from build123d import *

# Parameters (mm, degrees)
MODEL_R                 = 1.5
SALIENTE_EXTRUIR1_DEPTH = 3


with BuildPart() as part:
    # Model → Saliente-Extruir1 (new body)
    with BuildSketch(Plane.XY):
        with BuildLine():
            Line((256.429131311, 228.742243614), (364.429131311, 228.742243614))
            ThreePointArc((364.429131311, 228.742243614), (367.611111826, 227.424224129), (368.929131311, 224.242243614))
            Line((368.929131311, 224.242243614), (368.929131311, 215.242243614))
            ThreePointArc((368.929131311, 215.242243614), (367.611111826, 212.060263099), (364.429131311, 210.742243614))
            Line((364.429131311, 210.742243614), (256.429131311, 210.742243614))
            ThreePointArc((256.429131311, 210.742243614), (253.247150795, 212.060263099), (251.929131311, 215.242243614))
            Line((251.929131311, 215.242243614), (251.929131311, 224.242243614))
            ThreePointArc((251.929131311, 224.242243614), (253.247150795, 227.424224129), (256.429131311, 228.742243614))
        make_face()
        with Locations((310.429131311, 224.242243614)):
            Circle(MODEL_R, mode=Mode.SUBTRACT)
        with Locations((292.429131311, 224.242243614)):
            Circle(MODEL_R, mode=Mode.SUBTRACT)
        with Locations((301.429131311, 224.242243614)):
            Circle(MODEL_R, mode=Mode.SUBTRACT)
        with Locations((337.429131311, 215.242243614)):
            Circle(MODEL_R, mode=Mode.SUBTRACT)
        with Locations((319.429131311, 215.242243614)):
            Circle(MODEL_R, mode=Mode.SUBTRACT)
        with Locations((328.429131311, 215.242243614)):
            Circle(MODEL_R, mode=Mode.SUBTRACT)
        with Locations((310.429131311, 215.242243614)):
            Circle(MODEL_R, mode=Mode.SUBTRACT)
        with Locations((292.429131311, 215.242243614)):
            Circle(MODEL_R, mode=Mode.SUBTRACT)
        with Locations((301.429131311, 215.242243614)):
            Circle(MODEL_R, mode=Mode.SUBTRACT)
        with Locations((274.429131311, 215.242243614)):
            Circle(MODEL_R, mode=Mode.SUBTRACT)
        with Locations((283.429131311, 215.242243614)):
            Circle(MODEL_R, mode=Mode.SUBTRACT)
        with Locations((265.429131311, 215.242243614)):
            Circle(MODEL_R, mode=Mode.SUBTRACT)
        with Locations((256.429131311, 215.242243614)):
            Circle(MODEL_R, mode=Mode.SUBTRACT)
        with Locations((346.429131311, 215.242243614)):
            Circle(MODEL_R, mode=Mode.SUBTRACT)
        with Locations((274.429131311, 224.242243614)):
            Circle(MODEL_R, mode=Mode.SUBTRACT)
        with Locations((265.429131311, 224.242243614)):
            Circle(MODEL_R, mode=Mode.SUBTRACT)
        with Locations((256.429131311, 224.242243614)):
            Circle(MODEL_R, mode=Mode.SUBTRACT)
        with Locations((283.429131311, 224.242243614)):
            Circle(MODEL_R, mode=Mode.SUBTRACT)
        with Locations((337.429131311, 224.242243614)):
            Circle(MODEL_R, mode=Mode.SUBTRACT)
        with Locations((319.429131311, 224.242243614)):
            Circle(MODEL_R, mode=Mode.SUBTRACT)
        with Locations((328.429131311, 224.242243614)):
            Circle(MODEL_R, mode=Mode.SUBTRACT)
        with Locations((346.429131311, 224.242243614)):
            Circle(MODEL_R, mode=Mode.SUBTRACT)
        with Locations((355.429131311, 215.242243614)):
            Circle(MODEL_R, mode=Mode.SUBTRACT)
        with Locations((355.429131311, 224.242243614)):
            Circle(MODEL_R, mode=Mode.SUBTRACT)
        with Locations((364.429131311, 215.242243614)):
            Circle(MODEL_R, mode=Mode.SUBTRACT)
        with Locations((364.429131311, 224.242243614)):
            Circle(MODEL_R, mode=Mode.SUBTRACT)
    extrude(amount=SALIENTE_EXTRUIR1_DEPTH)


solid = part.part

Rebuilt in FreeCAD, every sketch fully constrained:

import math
import FreeCAD as App
import Part
import Sketcher
from FreeCAD import Vector

doc = App.newDocument("Part")
body = doc.addObject("PartDesign::Body", "Body")

sketch1 = doc.addObject("Sketcher::SketchObject", "Sketch")
body.addObject(sketch1)
sketch1.AttachmentSupport = (doc.XY_Plane, [""])
sketch1.MapMode = "FlatFace"
sketch1.addGeometry(Part.LineSegment(Vector(364.4, 228.7, 0), Vector(256.4, 228.7, 0)), False)
sketch1.addGeometry(Part.ArcOfCircle(Part.Circle(Vector(256.4, 224.2, 0), Vector(0, 0, 1), 4.5), math.radians(90), math.radians(180)), False)
sketch1.addGeometry(Part.LineSegment(Vector(251.9, 224.2, 0), Vector(251.9, 215.2, 0)), False)
sketch1.addGeometry(Part.ArcOfCircle(Part.Circle(Vector(256.4, 215.2, 0), Vector(0, 0, 1), 4.5), math.radians(180), math.radians(270)), False)
sketch1.addGeometry(Part.LineSegment(Vector(256.4, 210.7, 0), Vector(364.4, 210.7, 0)), False)
sketch1.addGeometry(Part.ArcOfCircle(Part.Circle(Vector(364.4, 215.2, 0), Vector(0, 0, 1), 4.5), math.radians(-90), math.radians(0)), False)
sketch1.addGeometry(Part.LineSegment(Vector(368.9, 215.2, 0), Vector(368.9, 224.2, 0)), False)
sketch1.addGeometry(Part.ArcOfCircle(Part.Circle(Vector(364.4, 224.2, 0), Vector(0, 0, 1), 4.5), math.radians(0), math.radians(90)), False)
sketch1.addGeometry(Part.Circle(Vector(364.4, 215.2, 0), Vector(0, 0, 1), 1.5), False)
sketch1.addGeometry(Part.Circle(Vector(355.4, 215.2, 0), Vector(0, 0, 1), 1.5), False)
sketch1.addGeometry(Part.Circle(Vector(346.4, 215.2, 0), Vector(0, 0, 1), 1.5), False)
sketch1.addGeometry(Part.Circle(Vector(337.4, 215.2, 0), Vector(0, 0, 1), 1.5), False)
sketch1.addGeometry(Part.Circle(Vector(328.4, 215.2, 0), Vector(0, 0, 1), 1.5), False)
sketch1.addGeometry(Part.Circle(Vector(319.4, 215.2, 0), Vector(0, 0, 1), 1.5), False)
sketch1.addGeometry(Part.Circle(Vector(310.4, 215.2, 0), Vector(0, 0, 1), 1.5), False)
sketch1.addGeometry(Part.Circle(Vector(301.4, 215.2, 0), Vector(0, 0, 1), 1.5), False)
sketch1.addGeometry(Part.Circle(Vector(292.4, 215.2, 0), Vector(0, 0, 1), 1.5), False)
sketch1.addGeometry(Part.Circle(Vector(283.4, 215.2, 0), Vector(0, 0, 1), 1.5), False)
sketch1.addGeometry(Part.Circle(Vector(274.4, 215.2, 0), Vector(0, 0, 1), 1.5), False)
sketch1.addGeometry(Part.Circle(Vector(265.4, 215.2, 0), Vector(0, 0, 1), 1.5), False)
sketch1.addGeometry(Part.Circle(Vector(256.4, 215.2, 0), Vector(0, 0, 1), 1.5), False)
sketch1.addGeometry(Part.Circle(Vector(364.4, 224.2, 0), Vector(0, 0, 1), 1.5), False)
sketch1.addGeometry(Part.Circle(Vector(355.4, 224.2, 0), Vector(0, 0, 1), 1.5), False)
sketch1.addGeometry(Part.Circle(Vector(346.4, 224.2, 0), Vector(0, 0, 1), 1.5), False)
sketch1.addGeometry(Part.Circle(Vector(337.4, 224.2, 0), Vector(0, 0, 1), 1.5), False)
sketch1.addGeometry(Part.Circle(Vector(328.4, 224.2, 0), Vector(0, 0, 1), 1.5), False)
sketch1.addGeometry(Part.Circle(Vector(319.4, 224.2, 0), Vector(0, 0, 1), 1.5), False)
sketch1.addGeometry(Part.Circle(Vector(310.4, 224.2, 0), Vector(0, 0, 1), 1.5), False)
sketch1.addGeometry(Part.Circle(Vector(301.4, 224.2, 0), Vector(0, 0, 1), 1.5), False)
sketch1.addGeometry(Part.Circle(Vector(292.4, 224.2, 0), Vector(0, 0, 1), 1.5), False)
sketch1.addGeometry(Part.Circle(Vector(283.4, 224.2, 0), Vector(0, 0, 1), 1.5), False)
sketch1.addGeometry(Part.Circle(Vector(274.4, 224.2, 0), Vector(0, 0, 1), 1.5), False)
sketch1.addGeometry(Part.Circle(Vector(265.4, 224.2, 0), Vector(0, 0, 1), 1.5), False)
sketch1.addGeometry(Part.Circle(Vector(256.4, 224.2, 0), Vector(0, 0, 1), 1.5), False)
sketch1.addConstraint(Sketcher.Constraint("Tangent", 0, 2, 1, 1))
sketch1.addConstraint(Sketcher.Constraint("Tangent", 1, 2, 2, 1))
sketch1.addConstraint(Sketcher.Constraint("Tangent", 2, 2, 3, 1))
sketch1.addConstraint(Sketcher.Constraint("Tangent", 3, 2, 4, 1))
sketch1.addConstraint(Sketcher.Constraint("Tangent", 4, 2, 5, 1))
sketch1.addConstraint(Sketcher.Constraint("Tangent", 5, 2, 6, 1))
sketch1.addConstraint(Sketcher.Constraint("Tangent", 6, 2, 7, 1))
sketch1.addConstraint(Sketcher.Constraint("Tangent", 7, 2, 0, 1))
sketch1.addConstraint(Sketcher.Constraint("Horizontal", 0))
sketch1.addConstraint(Sketcher.Constraint("Vertical", 2))
sketch1.addConstraint(Sketcher.Constraint("Horizontal", 4))
sketch1.addConstraint(Sketcher.Constraint("Vertical", 6))
sketch1.addConstraint(Sketcher.Constraint("Coincident", 8, 3, 5, 3))
sketch1.addConstraint(Sketcher.Constraint("Coincident", 20, 3, 3, 3))
sketch1.addConstraint(Sketcher.Constraint("Coincident", 21, 3, 7, 3))
sketch1.addConstraint(Sketcher.Constraint("Coincident", 33, 3, 1, 3))
sketch1.addConstraint(Sketcher.Constraint("Equal", 1, 3))
sketch1.addConstraint(Sketcher.Constraint("Equal", 3, 5))
sketch1.addConstraint(Sketcher.Constraint("Equal", 5, 7))
sketch1.addConstraint(Sketcher.Constraint("Equal", 8, 9))
sketch1.addConstraint(Sketcher.Constraint("Equal", 9, 10))
sketch1.addConstraint(Sketcher.Constraint("Equal", 10, 11))
sketch1.addConstraint(Sketcher.Constraint("Equal", 11, 12))
sketch1.addConstraint(Sketcher.Constraint("Equal", 12, 13))
sketch1.addConstraint(Sketcher.Constraint("Equal", 13, 14))
sketch1.addConstraint(Sketcher.Constraint("Equal", 14, 15))
sketch1.addConstraint(Sketcher.Constraint("Equal", 15, 16))
sketch1.addConstraint(Sketcher.Constraint("Equal", 16, 17))
sketch1.addConstraint(Sketcher.Constraint("Equal", 17, 18))
sketch1.addConstraint(Sketcher.Constraint("Equal", 18, 19))
sketch1.addConstraint(Sketcher.Constraint("Equal", 19, 20))
sketch1.addConstraint(Sketcher.Constraint("Equal", 20, 21))
sketch1.addConstraint(Sketcher.Constraint("Equal", 21, 22))
sketch1.addConstraint(Sketcher.Constraint("Equal", 22, 23))
sketch1.addConstraint(Sketcher.Constraint("Equal", 23, 24))
sketch1.addConstraint(Sketcher.Constraint("Equal", 24, 25))
sketch1.addConstraint(Sketcher.Constraint("Equal", 25, 26))
sketch1.addConstraint(Sketcher.Constraint("Equal", 26, 27))
sketch1.addConstraint(Sketcher.Constraint("Equal", 27, 28))
sketch1.addConstraint(Sketcher.Constraint("Equal", 28, 29))
sketch1.addConstraint(Sketcher.Constraint("Equal", 29, 30))
sketch1.addConstraint(Sketcher.Constraint("Equal", 30, 31))
sketch1.addConstraint(Sketcher.Constraint("Equal", 31, 32))
sketch1.addConstraint(Sketcher.Constraint("Equal", 32, 33))
sketch1.addConstraint(Sketcher.Constraint("Horizontal", 8, 3, 9, 3))
sketch1.addConstraint(Sketcher.Constraint("Horizontal", 9, 3, 10, 3))
sketch1.addConstraint(Sketcher.Constraint("Horizontal", 10, 3, 11, 3))
sketch1.addConstraint(Sketcher.Constraint("Horizontal", 11, 3, 12, 3))
sketch1.addConstraint(Sketcher.Constraint("Horizontal", 12, 3, 13, 3))
sketch1.addConstraint(Sketcher.Constraint("Horizontal", 13, 3, 14, 3))
sketch1.addConstraint(Sketcher.Constraint("Horizontal", 14, 3, 15, 3))
sketch1.addConstraint(Sketcher.Constraint("Horizontal", 15, 3, 16, 3))
sketch1.addConstraint(Sketcher.Constraint("Horizontal", 16, 3, 17, 3))
sketch1.addConstraint(Sketcher.Constraint("Horizontal", 17, 3, 18, 3))
sketch1.addConstraint(Sketcher.Constraint("Horizontal", 18, 3, 19, 3))
sketch1.addConstraint(Sketcher.Constraint("Horizontal", 21, 3, 22, 3))
sketch1.addConstraint(Sketcher.Constraint("Horizontal", 22, 3, 23, 3))
sketch1.addConstraint(Sketcher.Constraint("Horizontal", 23, 3, 24, 3))
sketch1.addConstraint(Sketcher.Constraint("Horizontal", 24, 3, 25, 3))
sketch1.addConstraint(Sketcher.Constraint("Horizontal", 25, 3, 26, 3))
sketch1.addConstraint(Sketcher.Constraint("Horizontal", 26, 3, 27, 3))
sketch1.addConstraint(Sketcher.Constraint("Horizontal", 27, 3, 28, 3))
sketch1.addConstraint(Sketcher.Constraint("Horizontal", 28, 3, 29, 3))
sketch1.addConstraint(Sketcher.Constraint("Horizontal", 29, 3, 30, 3))
sketch1.addConstraint(Sketcher.Constraint("Horizontal", 30, 3, 31, 3))
sketch1.addConstraint(Sketcher.Constraint("Horizontal", 31, 3, 32, 3))
sketch1.addConstraint(Sketcher.Constraint("Vertical", 9, 3, 22, 3))
sketch1.addConstraint(Sketcher.Constraint("Vertical", 10, 3, 23, 3))
sketch1.addConstraint(Sketcher.Constraint("Vertical", 11, 3, 24, 3))
sketch1.addConstraint(Sketcher.Constraint("Vertical", 12, 3, 25, 3))
sketch1.addConstraint(Sketcher.Constraint("Vertical", 13, 3, 26, 3))
sketch1.addConstraint(Sketcher.Constraint("Vertical", 14, 3, 27, 3))
sketch1.addConstraint(Sketcher.Constraint("Vertical", 15, 3, 28, 3))
sketch1.addConstraint(Sketcher.Constraint("Vertical", 16, 3, 29, 3))
sketch1.addConstraint(Sketcher.Constraint("Vertical", 17, 3, 30, 3))
sketch1.addConstraint(Sketcher.Constraint("Vertical", 18, 3, 31, 3))
sketch1.addConstraint(Sketcher.Constraint("Vertical", 19, 3, 32, 3))
sketch1.addConstraint(Sketcher.Constraint("Diameter", 8, 3.0))
sketch1.addConstraint(Sketcher.Constraint("Radius", 1, 4.5))
sketch1.addConstraint(Sketcher.Constraint("DistanceX", 0, 2, 0, 1, 108.0))
sketch1.addConstraint(Sketcher.Constraint("DistanceY", 2, 2, 2, 1, 9.0))
sketch1.addConstraint(Sketcher.Constraint("DistanceX", 9, 3, 5, 3, 9.0))
sketch1.addConstraint(Sketcher.Constraint("DistanceX", 10, 3, 9, 3, 9.0))
sketch1.addConstraint(Sketcher.Constraint("DistanceX", 11, 3, 10, 3, 9.0))
sketch1.addConstraint(Sketcher.Constraint("DistanceX", 12, 3, 11, 3, 9.0))
sketch1.addConstraint(Sketcher.Constraint("DistanceX", 13, 3, 12, 3, 9.0))
sketch1.addConstraint(Sketcher.Constraint("DistanceX", 14, 3, 13, 3, 9.0))
sketch1.addConstraint(Sketcher.Constraint("DistanceX", 15, 3, 14, 3, 9.0))
sketch1.addConstraint(Sketcher.Constraint("DistanceX", 16, 3, 15, 3, 9.0))
sketch1.addConstraint(Sketcher.Constraint("DistanceX", 17, 3, 16, 3, 9.0))
sketch1.addConstraint(Sketcher.Constraint("DistanceX", 18, 3, 17, 3, 9.0))
sketch1.addConstraint(Sketcher.Constraint("DistanceX", 19, 3, 18, 3, 9.0))
sketch1.addConstraint(Sketcher.Constraint("DistanceX", -1, 1, 1, 3, 256.429131))
sketch1.addConstraint(Sketcher.Constraint("DistanceY", -1, 1, 1, 3, 224.242244))
pad1 = doc.addObject("PartDesign::Pad", "Pad")
body.addObject(pad1)
pad1.Profile = sketch1
pad1.Length = 3

doc.recompute()
